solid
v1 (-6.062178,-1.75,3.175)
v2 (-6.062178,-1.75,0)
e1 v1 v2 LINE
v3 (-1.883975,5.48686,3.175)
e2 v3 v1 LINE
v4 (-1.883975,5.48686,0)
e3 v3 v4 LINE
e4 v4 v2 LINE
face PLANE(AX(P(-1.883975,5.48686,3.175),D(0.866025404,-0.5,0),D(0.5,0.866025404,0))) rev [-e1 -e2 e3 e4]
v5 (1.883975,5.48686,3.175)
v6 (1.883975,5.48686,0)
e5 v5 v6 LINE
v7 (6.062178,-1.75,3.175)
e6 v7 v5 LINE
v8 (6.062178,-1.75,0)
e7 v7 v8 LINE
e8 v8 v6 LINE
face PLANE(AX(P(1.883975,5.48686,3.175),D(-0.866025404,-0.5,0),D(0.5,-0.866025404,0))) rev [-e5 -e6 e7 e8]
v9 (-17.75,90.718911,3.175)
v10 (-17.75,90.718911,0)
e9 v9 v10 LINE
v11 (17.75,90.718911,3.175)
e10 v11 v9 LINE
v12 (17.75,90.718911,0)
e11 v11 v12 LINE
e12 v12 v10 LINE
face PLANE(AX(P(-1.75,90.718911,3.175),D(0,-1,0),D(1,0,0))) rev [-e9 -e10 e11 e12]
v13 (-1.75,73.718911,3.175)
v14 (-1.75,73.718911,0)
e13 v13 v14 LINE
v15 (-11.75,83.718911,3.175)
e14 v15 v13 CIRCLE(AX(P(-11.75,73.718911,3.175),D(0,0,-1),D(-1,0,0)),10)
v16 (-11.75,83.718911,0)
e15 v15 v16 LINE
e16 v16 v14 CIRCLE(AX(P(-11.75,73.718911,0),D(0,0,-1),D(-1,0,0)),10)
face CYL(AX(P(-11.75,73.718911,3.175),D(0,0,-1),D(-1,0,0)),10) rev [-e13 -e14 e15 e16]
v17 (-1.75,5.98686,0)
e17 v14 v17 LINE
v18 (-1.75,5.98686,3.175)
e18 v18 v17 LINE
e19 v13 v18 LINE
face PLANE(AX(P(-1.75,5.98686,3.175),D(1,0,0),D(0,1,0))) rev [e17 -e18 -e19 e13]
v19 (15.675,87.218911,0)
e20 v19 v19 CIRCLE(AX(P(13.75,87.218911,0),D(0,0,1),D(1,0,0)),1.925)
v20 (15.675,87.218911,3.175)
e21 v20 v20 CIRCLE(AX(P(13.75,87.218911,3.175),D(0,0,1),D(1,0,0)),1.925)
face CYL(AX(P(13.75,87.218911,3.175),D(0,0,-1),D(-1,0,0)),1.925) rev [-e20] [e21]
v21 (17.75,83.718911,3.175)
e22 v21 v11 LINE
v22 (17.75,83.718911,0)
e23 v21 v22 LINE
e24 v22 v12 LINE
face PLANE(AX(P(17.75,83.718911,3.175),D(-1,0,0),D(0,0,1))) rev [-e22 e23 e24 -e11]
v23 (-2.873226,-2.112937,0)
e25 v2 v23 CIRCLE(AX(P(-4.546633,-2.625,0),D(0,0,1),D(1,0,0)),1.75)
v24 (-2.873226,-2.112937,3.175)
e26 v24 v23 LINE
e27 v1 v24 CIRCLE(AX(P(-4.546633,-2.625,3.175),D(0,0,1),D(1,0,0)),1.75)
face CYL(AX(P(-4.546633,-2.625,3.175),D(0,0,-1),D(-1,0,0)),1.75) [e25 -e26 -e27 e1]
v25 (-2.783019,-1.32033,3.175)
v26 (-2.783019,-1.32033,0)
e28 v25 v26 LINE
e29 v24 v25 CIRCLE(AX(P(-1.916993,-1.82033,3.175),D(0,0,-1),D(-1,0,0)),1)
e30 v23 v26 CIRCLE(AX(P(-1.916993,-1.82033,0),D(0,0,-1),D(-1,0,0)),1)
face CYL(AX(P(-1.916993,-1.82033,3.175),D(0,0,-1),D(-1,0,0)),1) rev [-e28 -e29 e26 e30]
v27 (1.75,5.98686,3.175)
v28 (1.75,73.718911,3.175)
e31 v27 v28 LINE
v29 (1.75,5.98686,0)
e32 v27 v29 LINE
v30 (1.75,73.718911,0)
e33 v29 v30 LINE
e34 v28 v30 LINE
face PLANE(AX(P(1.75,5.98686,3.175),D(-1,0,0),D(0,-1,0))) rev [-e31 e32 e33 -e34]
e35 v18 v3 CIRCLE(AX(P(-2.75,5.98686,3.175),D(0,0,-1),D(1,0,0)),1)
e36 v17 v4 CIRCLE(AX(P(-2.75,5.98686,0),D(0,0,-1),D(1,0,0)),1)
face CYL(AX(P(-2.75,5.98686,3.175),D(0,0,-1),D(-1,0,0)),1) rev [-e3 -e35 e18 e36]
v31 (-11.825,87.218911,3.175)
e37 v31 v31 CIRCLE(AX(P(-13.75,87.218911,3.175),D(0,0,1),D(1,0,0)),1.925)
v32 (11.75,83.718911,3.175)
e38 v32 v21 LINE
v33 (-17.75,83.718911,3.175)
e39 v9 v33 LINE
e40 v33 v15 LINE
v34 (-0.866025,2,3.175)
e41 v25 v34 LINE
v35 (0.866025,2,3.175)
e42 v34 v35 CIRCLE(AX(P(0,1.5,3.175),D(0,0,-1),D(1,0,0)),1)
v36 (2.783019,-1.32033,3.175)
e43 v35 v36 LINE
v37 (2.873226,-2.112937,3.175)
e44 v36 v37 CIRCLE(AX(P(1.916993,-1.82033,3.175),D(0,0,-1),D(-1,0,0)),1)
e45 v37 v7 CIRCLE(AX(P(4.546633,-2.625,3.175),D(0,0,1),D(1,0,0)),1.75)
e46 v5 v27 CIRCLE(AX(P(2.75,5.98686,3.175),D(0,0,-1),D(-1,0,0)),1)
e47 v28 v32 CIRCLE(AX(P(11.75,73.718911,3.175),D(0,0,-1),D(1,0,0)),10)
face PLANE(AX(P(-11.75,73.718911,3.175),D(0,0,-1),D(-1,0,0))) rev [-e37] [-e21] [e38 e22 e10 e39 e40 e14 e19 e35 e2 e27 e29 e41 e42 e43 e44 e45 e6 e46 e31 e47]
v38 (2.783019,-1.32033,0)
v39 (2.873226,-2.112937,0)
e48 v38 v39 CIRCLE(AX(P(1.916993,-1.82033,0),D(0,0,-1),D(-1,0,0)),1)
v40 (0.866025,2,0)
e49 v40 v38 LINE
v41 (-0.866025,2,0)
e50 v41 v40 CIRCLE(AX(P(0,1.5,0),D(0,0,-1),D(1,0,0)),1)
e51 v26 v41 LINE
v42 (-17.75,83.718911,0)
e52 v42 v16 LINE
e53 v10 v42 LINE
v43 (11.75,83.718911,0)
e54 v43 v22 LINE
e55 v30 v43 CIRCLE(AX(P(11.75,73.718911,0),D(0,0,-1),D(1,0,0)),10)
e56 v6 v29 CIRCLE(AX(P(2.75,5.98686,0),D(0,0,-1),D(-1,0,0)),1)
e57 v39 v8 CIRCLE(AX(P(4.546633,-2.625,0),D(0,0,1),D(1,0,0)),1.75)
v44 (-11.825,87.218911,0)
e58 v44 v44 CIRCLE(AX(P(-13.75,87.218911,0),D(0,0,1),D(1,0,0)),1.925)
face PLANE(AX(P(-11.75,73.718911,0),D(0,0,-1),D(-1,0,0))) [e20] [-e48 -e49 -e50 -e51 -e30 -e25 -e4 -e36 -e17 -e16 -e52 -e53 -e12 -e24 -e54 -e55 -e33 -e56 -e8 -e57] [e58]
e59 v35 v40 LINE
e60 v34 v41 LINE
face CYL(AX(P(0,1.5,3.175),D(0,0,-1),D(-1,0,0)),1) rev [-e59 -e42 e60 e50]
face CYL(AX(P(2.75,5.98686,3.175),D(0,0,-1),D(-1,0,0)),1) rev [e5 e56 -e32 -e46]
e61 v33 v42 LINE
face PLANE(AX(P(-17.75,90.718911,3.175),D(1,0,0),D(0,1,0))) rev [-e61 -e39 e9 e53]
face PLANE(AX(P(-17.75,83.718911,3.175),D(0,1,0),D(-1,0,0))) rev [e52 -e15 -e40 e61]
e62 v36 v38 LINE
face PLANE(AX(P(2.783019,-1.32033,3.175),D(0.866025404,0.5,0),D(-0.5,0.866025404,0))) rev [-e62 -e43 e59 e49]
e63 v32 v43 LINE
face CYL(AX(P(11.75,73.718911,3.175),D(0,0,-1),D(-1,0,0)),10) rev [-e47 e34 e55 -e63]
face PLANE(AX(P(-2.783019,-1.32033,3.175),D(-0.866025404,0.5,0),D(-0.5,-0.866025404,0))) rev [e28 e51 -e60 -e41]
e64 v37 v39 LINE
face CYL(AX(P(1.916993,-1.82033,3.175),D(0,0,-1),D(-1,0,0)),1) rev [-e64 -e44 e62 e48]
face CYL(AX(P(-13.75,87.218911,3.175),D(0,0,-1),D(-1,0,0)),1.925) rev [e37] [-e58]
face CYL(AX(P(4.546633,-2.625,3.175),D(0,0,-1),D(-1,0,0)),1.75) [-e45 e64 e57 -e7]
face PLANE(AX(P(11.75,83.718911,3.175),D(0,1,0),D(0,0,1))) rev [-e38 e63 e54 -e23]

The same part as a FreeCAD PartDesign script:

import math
import FreeCAD as App
import Part
import Sketcher

V = App.Vector
Q = App.Units.Quantity

doc = App.newDocument("Part")
body = doc.addObject("PartDesign::Body", "Body")

# Sketch on XY plane
sketch1 = doc.addObject("Sketcher::SketchObject", "Sketch")
body.addObject(sketch1)
sketch1.AttachmentSupport = (doc.XY_Plane, [""])
sketch1.MapMode = "FlatFace"
sketch1.addGeometry(Part.LineSegment(V(17.75, 83.718911, 0), V(17.75, 90.718911, 0)), False)
sketch1.addGeometry(Part.LineSegment(V(17.75, 90.718911, 0), V(-17.75, 90.718911, 0)), False)
sketch1.addGeometry(Part.LineSegment(V(-17.75, 90.718911, 0), V(-17.75, 83.718911, 0)), False)
sketch1.addGeometry(Part.LineSegment(V(-17.75, 83.718911, 0), V(-11.75, 83.718911, 0)), False)
sketch1.addGeometry(Part.ArcOfCircle(Part.Circle(V(-11.75, 73.718911, 0), V(0, 0, 1), 10), math.radians(0), math.radians(90)), False)
sketch1.addGeometry(Part.LineSegment(V(-1.75, 73.718911, 0), V(-1.75, 5.98686, 0)), False)
sketch1.addGeometry(Part.ArcOfCircle(Part.Circle(V(-2.75, 5.98686, 0), V(0, 0, 1), 1), math.radians(-30), math.radians(0)), False)
sketch1.addGeometry(Part.LineSegment(V(-1.883975, 5.48686, 0), V(-6.062178, -1.75, 0)), False)
sketch1.addGeometry(Part.ArcOfCircle(Part.Circle(V(-4.546633, -2.625, 0), V(0, 0, 1), 1.75), math.radians(150), math.radians(377.014114)), False)
sketch1.addGeometry(Part.ArcOfCircle(Part.Circle(V(-1.916993, -1.82033, 0), V(0, 0, 1), 1), math.radians(150), math.radians(197.014114)), False)
sketch1.addGeometry(Part.LineSegment(V(-2.783019, -1.32033, 0), V(-0.866025, 2, 0)), False)
sketch1.addGeometry(Part.ArcOfCircle(Part.Circle(V(0, 1.5, 0), V(0, 0, 1), 1), math.radians(30), math.radians(150)), False)
sketch1.addGeometry(Part.LineSegment(V(0.866025, 2, 0), V(2.783019, -1.32033, 0)), False)
sketch1.addGeometry(Part.ArcOfCircle(Part.Circle(V(1.916993, -1.82033, 0), V(0, 0, 1), 1), math.radians(-17.014114), math.radians(30)), False)
sketch1.addGeometry(Part.ArcOfCircle(Part.Circle(V(4.546633, -2.625, 0), V(0, 0, 1), 1.75), math.radians(162.985886), math.radians(390)), False)
sketch1.addGeometry(Part.LineSegment(V(6.062178, -1.75, 0), V(1.883975, 5.48686, 0)), False)
sketch1.addGeometry(Part.ArcOfCircle(Part.Circle(V(2.75, 5.98686, 0), V(0, 0, 1), 1), math.radians(-180), math.radians(-150)), False)
sketch1.addGeometry(Part.LineSegment(V(1.75, 5.98686, 0), V(1.75, 73.718911, 0)), False)
sketch1.addGeometry(Part.ArcOfCircle(Part.Circle(V(11.75, 73.718911, 0), V(0, 0, 1), 10), math.radians(90), math.radians(180)), False)
sketch1.addGeometry(Part.LineSegment(V(11.75, 83.718911, 0), V(17.75, 83.718911, 0)), False)
sketch1.addGeometry(Part.Circle(V(13.75, 87.218911, 0), V(0, 0, 1), 1.925), False)
sketch1.addGeometry(Part.Circle(V(-13.75, 87.218911, 0), V(0, 0, 1), 1.925), False)
sketch1.addConstraint(Sketcher.Constraint("Coincident", 0, 2, 1, 1))
sketch1.addConstraint(Sketcher.Constraint("Coincident", 1, 2, 2, 1))
sketch1.addConstraint(Sketcher.Constraint("Coincident", 2, 2, 3, 1))
sketch1.addConstraint(Sketcher.Constraint("Tangent", 3, 2, 4, 2))
sketch1.addConstraint(Sketcher.Constraint("Tangent", 4, 1, 5, 1))
sketch1.addConstraint(Sketcher.Constraint("Tangent", 5, 2, 6, 2))
sketch1.addConstraint(Sketcher.Constraint("Tangent", 6, 1, 7, 1))
sketch1.addConstraint(Sketcher.Constraint("Tangent", 7, 2, 8, 1))
sketch1.addConstraint(Sketcher.Constraint("Tangent", 8, 2, 9, 2))
sketch1.addConstraint(Sketcher.Constraint("Tangent", 9, 1, 10, 1))
sketch1.addConstraint(Sketcher.Constraint("Tangent", 10, 2, 11, 2))
sketch1.addConstraint(Sketcher.Constraint("Tangent", 11, 1, 12, 1))
sketch1.addConstraint(Sketcher.Constraint("Tangent", 12, 2, 13, 2))
sketch1.addConstraint(Sketcher.Constraint("Tangent", 13, 1, 14, 1))
sketch1.addConstraint(Sketcher.Constraint("Tangent", 14, 2, 15, 1))
sketch1.addConstraint(Sketcher.Constraint("Tangent", 15, 2, 16, 2))
sketch1.addConstraint(Sketcher.Constraint("Tangent", 16, 1, 17, 1))
sketch1.addConstraint(Sketcher.Constraint("Tangent", 17, 2, 18, 2))
sketch1.addConstraint(Sketcher.Constraint("Tangent", 18, 1, 19, 1))
sketch1.addConstraint(Sketcher.Constraint("Coincident", 19, 2, 0, 1))
sketch1.addConstraint(Sketcher.Constraint("Vertical", 0))
sketch1.addConstraint(Sketcher.Constraint("Horizontal", 1))
sketch1.addConstraint(Sketcher.Constraint("Vertical", 2))
sketch1.addConstraint(Sketcher.Constraint("Horizontal", 3))
sketch1.addConstraint(Sketcher.Constraint("Vertical", 5))
sketch1.addConstraint(Sketcher.Constraint("Vertical", 17))
sketch1.addConstraint(Sketcher.Constraint("Horizontal", 19))
sketch1.addConstraint(Sketcher.Constraint("Equal", 6, 9))
sketch1.addConstraint(Sketcher.Constraint("Equal", 9, 11))
sketch1.addConstraint(Sketcher.Constraint("Equal", 11, 13))
sketch1.addConstraint(Sketcher.Constraint("Equal", 8, 14))
sketch1.addConstraint(Sketcher.Constraint("Equal", 13, 16))
sketch1.addConstraint(Sketcher.Constraint("Equal", 4, 18))
sketch1.addConstraint(Sketcher.Constraint("Equal", 20, 21))
sketch1.addConstraint(Sketcher.Constraint("Symmetric", 9, 3, 13, 3, -2))
sketch1.addConstraint(Sketcher.Constraint("Symmetric", 6, 3, 16, 3, -2))
sketch1.addConstraint(Sketcher.Constraint("Symmetric", 20, 3, 21, 3, -2))
sketch1.addConstraint(Sketcher.Constraint("Symmetric", 2, 2, 19, 2, -2))
sketch1.addConstraint(Sketcher.Constraint("PointOnObject", 11, 3, -2))
sketch1.addConstraint(Sketcher.Constraint("Parallel", 7, 10))
sketch1.addConstraint(Sketcher.Constraint("Parallel", 12, 15))
sketch1.addConstraint(Sketcher.Constraint("Radius", 4, 10.0))
sketch1.addConstraint(Sketcher.Constraint("Radius", 6, 1.0))
sketch1.addConstraint(Sketcher.Constraint("Diameter", 20, 3.85))
sketch1.addConstraint(Sketcher.Constraint("DistanceX", 3, 1, 3, 2, 6.0))
sketch1.addConstraint(Sketcher.Constraint("DistanceY", 0, 1, 0, 2, 7.0))
sketch1.addConstraint(Sketcher.Constraint("Angle", 7, Q("-120 deg")))
sketch1.addConstraint(Sketcher.Constraint("Radius", 8, 1.75))
sketch1.addConstraint(Sketcher.Constraint("DistanceX", 1, 2, 1, 1, 35.5))
sketch1.addConstraint(Sketcher.Constraint("DistanceY", -1, 1, 10, 2, 2.0))
sketch1.addConstraint(Sketcher.Constraint("DistanceX", 18, 3, 20, 3, 2.0))
sketch1.addConstraint(Sketcher.Constraint("DistanceY", 18, 3, 20, 3, 13.5))
sketch1.addConstraint(Sketcher.Constraint("DistanceY", 7, 2, -1, 1, 1.75))
sketch1.addConstraint(Sketcher.Constraint("DistanceY", 5, 2, 5, 1, 67.732051))
sketch1.addConstraint(Sketcher.Constraint("DistanceX", 11, 1, 13, 1, 2.007201))
pad1 = doc.addObject("PartDesign::Pad", "Pad")
body.addObject(pad1)
pad1.Profile = sketch1
pad1.Length = 3.175

doc.recompute()
